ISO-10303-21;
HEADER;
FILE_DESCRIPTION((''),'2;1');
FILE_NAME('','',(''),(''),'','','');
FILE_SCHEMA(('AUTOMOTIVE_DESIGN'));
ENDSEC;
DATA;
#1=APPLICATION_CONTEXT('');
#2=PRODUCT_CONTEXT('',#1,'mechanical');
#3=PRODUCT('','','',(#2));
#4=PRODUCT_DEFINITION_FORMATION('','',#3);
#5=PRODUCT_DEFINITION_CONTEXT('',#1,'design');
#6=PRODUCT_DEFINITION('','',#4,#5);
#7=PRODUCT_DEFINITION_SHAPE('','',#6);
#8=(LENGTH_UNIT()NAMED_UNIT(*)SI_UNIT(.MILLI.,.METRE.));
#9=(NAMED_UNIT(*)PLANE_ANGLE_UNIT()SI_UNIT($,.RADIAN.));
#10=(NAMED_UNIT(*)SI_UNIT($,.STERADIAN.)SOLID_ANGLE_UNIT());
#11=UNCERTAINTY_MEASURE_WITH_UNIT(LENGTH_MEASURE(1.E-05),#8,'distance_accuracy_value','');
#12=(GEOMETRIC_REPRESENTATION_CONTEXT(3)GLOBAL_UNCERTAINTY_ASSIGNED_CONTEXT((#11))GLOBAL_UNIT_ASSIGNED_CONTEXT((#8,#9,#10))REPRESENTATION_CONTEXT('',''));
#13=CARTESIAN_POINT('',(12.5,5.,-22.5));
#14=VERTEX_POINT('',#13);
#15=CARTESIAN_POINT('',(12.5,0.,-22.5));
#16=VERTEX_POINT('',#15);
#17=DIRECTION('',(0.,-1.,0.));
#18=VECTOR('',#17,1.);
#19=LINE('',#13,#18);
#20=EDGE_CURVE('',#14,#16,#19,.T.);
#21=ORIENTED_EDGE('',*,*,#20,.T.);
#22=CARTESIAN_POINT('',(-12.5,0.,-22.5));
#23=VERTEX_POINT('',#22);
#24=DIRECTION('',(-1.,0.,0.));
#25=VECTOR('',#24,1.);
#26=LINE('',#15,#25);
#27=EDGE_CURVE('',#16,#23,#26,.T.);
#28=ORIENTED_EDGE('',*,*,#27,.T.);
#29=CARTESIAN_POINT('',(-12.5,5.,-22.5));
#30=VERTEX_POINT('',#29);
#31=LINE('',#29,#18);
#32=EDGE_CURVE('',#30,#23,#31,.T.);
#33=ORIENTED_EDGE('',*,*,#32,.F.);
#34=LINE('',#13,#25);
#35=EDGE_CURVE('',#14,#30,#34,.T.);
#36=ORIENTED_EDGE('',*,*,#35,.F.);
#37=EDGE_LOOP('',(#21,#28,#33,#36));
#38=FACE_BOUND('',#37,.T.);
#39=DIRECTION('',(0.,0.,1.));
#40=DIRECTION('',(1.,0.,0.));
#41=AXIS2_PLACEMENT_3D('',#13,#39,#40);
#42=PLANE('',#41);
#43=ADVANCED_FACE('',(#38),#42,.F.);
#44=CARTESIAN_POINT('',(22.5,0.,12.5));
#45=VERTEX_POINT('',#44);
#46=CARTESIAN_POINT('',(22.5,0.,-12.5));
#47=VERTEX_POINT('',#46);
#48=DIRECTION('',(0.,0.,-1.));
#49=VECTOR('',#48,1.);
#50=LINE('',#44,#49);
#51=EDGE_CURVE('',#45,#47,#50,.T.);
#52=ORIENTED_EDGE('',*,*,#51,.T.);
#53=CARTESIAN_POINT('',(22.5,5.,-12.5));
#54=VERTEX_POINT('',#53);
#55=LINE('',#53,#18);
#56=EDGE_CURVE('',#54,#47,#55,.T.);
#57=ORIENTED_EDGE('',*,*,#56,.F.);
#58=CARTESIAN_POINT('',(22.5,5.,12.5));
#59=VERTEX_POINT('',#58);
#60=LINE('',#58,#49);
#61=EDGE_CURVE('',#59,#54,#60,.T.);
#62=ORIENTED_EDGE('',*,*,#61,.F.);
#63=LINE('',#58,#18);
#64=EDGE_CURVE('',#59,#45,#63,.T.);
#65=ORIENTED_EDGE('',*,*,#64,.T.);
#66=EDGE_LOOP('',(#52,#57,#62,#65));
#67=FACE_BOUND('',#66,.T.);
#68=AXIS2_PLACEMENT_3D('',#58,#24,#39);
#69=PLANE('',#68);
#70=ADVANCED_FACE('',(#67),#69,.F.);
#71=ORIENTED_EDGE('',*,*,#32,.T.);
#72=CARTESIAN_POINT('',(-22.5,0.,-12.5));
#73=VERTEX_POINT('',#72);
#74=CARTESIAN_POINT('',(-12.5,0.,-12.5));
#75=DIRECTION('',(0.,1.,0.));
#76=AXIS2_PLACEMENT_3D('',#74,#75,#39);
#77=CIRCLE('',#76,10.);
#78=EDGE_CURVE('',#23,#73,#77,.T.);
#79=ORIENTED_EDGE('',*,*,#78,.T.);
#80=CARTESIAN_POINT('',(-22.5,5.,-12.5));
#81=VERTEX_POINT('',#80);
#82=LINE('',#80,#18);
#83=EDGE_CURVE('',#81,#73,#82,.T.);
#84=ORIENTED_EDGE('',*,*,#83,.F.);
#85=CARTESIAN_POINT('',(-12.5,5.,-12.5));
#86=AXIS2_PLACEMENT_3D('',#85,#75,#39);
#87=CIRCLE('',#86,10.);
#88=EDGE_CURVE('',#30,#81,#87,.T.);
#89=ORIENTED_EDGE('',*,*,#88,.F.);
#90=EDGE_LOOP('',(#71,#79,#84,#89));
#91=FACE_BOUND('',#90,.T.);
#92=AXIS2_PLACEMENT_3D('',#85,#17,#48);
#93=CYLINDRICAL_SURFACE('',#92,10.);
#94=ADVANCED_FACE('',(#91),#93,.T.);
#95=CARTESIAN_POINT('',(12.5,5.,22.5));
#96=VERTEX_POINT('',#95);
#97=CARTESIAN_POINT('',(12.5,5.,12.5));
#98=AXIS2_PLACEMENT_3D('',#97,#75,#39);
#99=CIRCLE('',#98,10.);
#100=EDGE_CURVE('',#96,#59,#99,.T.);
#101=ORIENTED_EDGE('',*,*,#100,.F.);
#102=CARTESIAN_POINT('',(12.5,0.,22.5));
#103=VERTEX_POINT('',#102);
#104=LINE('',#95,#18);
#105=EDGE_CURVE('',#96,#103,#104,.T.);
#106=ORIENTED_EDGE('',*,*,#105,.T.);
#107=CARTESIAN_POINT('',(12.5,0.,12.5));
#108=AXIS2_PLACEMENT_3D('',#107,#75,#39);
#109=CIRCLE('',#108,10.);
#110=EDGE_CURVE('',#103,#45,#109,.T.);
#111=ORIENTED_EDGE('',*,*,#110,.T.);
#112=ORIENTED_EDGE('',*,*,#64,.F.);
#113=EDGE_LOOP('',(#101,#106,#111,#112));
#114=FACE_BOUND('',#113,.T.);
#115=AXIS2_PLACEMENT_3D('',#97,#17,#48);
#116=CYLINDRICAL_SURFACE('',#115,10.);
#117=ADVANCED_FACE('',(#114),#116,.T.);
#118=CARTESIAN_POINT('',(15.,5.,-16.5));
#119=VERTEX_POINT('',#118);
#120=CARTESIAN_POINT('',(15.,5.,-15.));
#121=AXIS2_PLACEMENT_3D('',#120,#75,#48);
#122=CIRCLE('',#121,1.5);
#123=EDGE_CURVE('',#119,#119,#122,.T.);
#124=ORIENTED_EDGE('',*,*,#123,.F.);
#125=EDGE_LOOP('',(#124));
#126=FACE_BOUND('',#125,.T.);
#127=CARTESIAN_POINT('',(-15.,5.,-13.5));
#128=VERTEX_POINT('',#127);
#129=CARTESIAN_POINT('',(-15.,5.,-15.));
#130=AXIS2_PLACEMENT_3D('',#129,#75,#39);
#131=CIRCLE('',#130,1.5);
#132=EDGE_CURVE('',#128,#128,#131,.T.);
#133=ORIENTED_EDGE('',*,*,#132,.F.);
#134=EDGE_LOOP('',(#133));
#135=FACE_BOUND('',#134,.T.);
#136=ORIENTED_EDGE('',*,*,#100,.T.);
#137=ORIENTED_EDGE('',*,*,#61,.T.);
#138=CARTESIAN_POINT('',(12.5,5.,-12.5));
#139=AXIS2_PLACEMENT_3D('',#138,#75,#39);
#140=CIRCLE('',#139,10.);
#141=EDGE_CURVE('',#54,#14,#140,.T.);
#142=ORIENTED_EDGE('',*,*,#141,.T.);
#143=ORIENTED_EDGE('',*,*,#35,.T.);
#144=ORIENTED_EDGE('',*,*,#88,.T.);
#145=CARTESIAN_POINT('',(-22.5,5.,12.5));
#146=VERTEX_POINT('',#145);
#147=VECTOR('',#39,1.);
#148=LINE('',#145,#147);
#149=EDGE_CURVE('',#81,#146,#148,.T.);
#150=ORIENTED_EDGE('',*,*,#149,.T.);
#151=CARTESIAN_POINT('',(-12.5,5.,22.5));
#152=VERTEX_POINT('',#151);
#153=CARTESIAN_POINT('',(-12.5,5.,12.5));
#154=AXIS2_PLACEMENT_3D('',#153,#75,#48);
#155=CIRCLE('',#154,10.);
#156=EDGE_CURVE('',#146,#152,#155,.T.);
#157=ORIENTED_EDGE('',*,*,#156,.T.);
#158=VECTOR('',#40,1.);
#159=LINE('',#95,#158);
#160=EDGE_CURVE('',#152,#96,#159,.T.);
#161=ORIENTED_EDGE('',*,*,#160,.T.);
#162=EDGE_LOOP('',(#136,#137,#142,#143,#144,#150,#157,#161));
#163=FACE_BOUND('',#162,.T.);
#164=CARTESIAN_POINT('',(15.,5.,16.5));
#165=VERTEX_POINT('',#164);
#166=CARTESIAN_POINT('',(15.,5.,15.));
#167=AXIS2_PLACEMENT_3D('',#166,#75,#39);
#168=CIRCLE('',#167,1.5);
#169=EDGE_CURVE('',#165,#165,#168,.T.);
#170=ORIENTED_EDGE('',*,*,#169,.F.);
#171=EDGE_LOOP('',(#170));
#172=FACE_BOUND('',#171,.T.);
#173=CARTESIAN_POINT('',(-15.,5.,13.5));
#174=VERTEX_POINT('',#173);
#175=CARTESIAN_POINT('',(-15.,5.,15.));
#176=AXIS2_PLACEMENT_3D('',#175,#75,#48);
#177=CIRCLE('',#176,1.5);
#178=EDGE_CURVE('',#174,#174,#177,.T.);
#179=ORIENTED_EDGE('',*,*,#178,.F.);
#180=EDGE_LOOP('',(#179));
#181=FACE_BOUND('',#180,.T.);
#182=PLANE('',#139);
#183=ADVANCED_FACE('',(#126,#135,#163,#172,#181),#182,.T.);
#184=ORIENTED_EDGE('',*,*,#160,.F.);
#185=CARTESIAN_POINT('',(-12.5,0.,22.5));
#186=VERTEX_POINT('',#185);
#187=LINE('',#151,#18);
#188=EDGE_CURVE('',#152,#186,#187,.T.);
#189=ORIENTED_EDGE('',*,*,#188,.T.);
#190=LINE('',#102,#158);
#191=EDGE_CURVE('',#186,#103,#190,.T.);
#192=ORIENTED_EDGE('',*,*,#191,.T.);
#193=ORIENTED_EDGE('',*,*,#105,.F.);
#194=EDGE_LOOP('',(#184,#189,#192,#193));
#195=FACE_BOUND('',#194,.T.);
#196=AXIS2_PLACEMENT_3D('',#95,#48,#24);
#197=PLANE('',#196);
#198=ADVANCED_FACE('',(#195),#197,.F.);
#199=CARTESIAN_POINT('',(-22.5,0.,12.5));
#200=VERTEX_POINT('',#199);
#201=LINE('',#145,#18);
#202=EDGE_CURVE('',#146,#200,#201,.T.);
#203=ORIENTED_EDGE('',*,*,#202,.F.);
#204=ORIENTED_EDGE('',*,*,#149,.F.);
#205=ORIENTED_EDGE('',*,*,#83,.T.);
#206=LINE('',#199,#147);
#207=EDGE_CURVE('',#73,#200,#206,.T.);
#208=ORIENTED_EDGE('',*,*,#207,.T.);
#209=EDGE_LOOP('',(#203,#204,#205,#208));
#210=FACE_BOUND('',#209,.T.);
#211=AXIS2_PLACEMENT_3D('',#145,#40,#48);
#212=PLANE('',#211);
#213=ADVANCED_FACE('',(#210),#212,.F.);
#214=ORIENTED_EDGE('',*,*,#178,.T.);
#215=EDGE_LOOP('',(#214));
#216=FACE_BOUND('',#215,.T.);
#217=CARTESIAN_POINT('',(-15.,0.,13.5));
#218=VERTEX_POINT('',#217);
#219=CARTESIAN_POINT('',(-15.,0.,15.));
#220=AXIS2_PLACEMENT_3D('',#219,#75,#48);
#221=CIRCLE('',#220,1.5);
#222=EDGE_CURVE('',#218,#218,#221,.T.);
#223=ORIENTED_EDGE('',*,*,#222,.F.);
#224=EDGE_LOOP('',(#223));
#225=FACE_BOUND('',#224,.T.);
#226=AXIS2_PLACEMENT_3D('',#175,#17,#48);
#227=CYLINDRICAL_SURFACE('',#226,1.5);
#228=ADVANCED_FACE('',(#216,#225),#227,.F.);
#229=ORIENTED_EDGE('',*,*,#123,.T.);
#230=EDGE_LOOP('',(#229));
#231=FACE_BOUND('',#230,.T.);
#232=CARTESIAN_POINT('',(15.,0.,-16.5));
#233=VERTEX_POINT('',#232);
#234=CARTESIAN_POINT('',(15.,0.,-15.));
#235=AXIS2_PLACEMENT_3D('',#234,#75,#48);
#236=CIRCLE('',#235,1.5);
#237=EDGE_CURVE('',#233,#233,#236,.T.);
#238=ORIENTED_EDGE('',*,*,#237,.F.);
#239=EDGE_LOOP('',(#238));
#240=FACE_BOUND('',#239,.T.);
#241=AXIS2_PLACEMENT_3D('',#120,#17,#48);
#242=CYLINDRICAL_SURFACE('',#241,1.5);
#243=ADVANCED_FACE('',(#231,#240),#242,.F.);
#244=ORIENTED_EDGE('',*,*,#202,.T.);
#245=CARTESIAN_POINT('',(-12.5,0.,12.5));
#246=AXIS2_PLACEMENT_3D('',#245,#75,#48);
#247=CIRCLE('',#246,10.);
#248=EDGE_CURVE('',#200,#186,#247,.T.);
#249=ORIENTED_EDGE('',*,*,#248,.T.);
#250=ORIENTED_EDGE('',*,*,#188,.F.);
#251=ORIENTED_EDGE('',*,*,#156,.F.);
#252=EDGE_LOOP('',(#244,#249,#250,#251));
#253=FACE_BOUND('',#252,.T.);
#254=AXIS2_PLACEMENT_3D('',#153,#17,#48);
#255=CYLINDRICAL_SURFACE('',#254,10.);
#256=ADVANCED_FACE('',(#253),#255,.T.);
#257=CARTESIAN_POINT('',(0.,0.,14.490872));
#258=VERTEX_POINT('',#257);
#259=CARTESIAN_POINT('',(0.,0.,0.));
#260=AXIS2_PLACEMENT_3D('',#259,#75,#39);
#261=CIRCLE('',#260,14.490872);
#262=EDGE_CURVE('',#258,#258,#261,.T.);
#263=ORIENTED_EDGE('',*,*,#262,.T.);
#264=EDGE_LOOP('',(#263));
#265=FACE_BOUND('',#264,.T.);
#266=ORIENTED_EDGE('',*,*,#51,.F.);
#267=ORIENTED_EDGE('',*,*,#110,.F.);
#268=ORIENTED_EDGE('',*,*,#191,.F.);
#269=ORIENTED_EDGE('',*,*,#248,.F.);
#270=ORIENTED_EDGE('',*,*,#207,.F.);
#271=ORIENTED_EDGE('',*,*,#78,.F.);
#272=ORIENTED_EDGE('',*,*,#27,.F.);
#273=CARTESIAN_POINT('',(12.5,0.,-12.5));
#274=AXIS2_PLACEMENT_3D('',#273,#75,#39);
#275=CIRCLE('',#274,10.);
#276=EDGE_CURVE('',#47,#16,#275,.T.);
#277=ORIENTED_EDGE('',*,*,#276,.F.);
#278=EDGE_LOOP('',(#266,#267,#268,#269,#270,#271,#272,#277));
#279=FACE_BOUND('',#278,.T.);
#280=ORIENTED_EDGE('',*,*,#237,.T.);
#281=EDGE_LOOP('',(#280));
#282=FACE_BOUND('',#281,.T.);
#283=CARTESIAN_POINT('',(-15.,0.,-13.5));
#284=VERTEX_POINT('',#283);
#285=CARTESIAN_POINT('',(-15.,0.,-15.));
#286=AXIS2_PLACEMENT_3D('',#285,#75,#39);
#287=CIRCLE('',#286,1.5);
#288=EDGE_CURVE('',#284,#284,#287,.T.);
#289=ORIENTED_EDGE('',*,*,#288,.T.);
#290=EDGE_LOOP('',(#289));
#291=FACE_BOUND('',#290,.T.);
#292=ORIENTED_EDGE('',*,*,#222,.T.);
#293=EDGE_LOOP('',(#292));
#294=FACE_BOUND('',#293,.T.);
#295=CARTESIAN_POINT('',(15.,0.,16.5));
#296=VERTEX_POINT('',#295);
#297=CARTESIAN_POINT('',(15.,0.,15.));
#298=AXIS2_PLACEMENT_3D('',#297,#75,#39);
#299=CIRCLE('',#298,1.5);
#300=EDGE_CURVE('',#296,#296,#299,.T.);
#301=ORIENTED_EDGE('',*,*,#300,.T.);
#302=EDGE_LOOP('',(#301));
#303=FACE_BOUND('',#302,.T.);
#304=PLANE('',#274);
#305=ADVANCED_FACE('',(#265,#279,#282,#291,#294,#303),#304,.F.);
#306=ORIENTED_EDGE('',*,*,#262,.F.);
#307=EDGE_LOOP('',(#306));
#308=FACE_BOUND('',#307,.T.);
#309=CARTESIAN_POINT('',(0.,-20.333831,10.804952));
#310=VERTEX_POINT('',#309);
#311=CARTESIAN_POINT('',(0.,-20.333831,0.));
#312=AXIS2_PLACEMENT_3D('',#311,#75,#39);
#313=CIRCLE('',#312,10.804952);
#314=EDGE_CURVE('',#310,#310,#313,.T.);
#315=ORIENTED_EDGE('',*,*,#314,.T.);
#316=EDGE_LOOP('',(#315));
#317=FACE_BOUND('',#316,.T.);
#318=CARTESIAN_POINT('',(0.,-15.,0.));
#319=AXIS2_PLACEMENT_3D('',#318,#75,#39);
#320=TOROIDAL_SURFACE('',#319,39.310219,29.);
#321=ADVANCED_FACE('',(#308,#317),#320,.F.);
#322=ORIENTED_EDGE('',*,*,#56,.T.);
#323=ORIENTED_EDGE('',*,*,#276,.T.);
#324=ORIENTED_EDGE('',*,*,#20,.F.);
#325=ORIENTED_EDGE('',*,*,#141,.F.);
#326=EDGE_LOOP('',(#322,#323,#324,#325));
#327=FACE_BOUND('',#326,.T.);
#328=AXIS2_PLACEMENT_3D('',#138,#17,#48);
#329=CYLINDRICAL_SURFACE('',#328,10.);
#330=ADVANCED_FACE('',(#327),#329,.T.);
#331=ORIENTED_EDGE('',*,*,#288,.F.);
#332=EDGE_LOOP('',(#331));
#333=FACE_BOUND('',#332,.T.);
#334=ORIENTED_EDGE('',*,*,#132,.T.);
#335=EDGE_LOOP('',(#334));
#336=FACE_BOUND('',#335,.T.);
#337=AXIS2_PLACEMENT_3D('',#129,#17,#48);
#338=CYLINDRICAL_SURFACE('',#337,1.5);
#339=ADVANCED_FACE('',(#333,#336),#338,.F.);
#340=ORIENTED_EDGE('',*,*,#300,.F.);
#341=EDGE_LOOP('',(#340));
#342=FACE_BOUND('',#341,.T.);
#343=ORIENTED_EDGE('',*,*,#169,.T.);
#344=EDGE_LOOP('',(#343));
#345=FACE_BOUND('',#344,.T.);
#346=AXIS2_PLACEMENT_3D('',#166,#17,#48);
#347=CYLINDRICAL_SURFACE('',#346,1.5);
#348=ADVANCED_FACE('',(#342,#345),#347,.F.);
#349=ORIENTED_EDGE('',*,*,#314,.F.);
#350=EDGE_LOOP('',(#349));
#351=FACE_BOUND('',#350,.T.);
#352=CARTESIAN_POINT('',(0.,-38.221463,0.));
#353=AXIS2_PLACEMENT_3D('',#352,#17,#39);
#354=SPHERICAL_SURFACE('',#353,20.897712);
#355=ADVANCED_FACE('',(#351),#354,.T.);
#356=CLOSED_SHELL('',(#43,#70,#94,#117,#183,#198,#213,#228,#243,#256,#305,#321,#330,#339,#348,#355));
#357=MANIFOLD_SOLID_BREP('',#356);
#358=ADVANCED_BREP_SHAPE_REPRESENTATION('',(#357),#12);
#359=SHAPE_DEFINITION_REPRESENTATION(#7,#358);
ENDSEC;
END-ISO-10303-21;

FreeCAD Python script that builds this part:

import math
import FreeCAD as App
import Part
import Sketcher

doc = App.newDocument("Part")
body = doc.addObject("PartDesign::Body", "Body")

# Sketch on XZ plane
sketch1 = doc.addObject("Sketcher::SketchObject", "Sketch")
body.addObject(sketch1)
sketch1.AttachmentSupport = (doc.XZ_Plane, [""])
sketch1.MapMode = "FlatFace"
sketch1.addGeometry([
    Part.LineSegment(App.Vector(-12.5, 22.5, 0), App.Vector(12.5, 22.5, 0)),  # 0
    Part.ArcOfCircle(Part.Circle(App.Vector(12.5, 12.5, 0), App.Vector(0, 0, 1), 10), math.radians(0), math.radians(90)),  # 1
    Part.LineSegment(App.Vector(22.5, 12.5, 0), App.Vector(22.5, -12.5, 0)),  # 2
    Part.ArcOfCircle(Part.Circle(App.Vector(12.5, -12.5, 0), App.Vector(0, 0, 1), 10), math.radians(-90), math.radians(0)),  # 3
    Part.LineSegment(App.Vector(12.5, -22.5, 0), App.Vector(-12.5, -22.5, 0)),  # 4
    Part.ArcOfCircle(Part.Circle(App.Vector(-12.5, -12.5, 0), App.Vector(0, 0, 1), 10), math.radians(180), math.radians(270)),  # 5
    Part.LineSegment(App.Vector(-22.5, -12.5, 0), App.Vector(-22.5, 12.5, 0)),  # 6
    Part.ArcOfCircle(Part.Circle(App.Vector(-12.5, 12.5, 0), App.Vector(0, 0, 1), 10), math.radians(90), math.radians(180)),  # 7
    Part.Circle(App.Vector(15, 15, 0), App.Vector(0, 0, 1), 1.5),  # 8
    Part.Circle(App.Vector(-15, 15, 0), App.Vector(0, 0, 1), 1.5),  # 9
    Part.Circle(App.Vector(15, -15, 0), App.Vector(0, 0, 1), 1.5),  # 10
    Part.Circle(App.Vector(-15, -15, 0), App.Vector(0, 0, 1), 1.5),  # 11
], False)
sketch1.addConstraint([
    Sketcher.Constraint("Tangent", 0, 2, 1, 2),
    Sketcher.Constraint("Tangent", 1, 1, 2, 1),
    Sketcher.Constraint("Tangent", 2, 2, 3, 2),
    Sketcher.Constraint("Tangent", 3, 1, 4, 1),
    Sketcher.Constraint("Tangent", 4, 2, 5, 2),
    Sketcher.Constraint("Tangent", 5, 1, 6, 1),
    Sketcher.Constraint("Tangent", 6, 2, 7, 2),
    Sketcher.Constraint("Tangent", 7, 1, 0, 1),
    Sketcher.Constraint("Horizontal", 0),
    Sketcher.Constraint("Vertical", 2),
    Sketcher.Constraint("Horizontal", 4),
    Sketcher.Constraint("Vertical", 6),
    Sketcher.Constraint("Equal", 1, 3),
    Sketcher.Constraint("Equal", 3, 5),
    Sketcher.Constraint("Equal", 5, 7),
    Sketcher.Constraint("Equal", 8, 9),
    Sketcher.Constraint("Equal", 9, 10),
    Sketcher.Constraint("Equal", 10, 11),
    Sketcher.Constraint("Symmetric", 1, 3, 5, 3, -1, 1),
    Sketcher.Constraint("Symmetric", 9, 3, 10, 3, -1, 1),
    Sketcher.Constraint("Symmetric", 8, 3, 11, 3, -1, 1),
    Sketcher.Constraint("Symmetric", 8, 3, 9, 3, -2),
    Sketcher.Constraint("Equal", 4, 2),
    Sketcher.Constraint("Diameter", 8, 3.0),
    Sketcher.Constraint("Radius", 1, 10.0),
    Sketcher.Constraint("DistanceX", 0, 1, 0, 2, 25.0),
    Sketcher.Constraint("DistanceX", -1, 1, 8, 3, 15.0),
    Sketcher.Constraint("DistanceY", -1, 1, 8, 3, 15.0),
])
pad1 = doc.addObject("PartDesign::Pad", "Pad")
body.addObject(pad1)
pad1.Profile = sketch1
pad1.Length = 5
pad1.Reversed = True

# Sketch on XY plane
sketch2 = doc.addObject("Sketcher::SketchObject", "Sketch001")
body.addObject(sketch2)
sketch2.AttachmentSupport = (doc.XY_Plane, [""])
sketch2.MapMode = "FlatFace"
sketch2.addGeometry([
    Part.LineSegment(App.Vector(0, -30, 0), App.Vector(0, 0, 0)),
    Part.LineSegment(App.Vector(0, 0, 0), App.Vector(-14, 0, 0)),
    Part.ArcOfCircle(Part.Circle(App.Vector(-39, -15, 0), App.Vector(0, 0, 1), 29), math.radians(-31), math.radians(31)),
    Part.LineSegment(App.Vector(-14, -30, 0), App.Vector(0, -30, 0)),
], False)
sketch2.addConstraint([
    Sketcher.Constraint("Coincident", 0, 2, 1, 1),
    Sketcher.Constraint("Coincident", 1, 2, 2, 2),
    Sketcher.Constraint("Coincident", 2, 1, 3, 1),
    Sketcher.Constraint("Coincident", 3, 2, 0, 1),
    Sketcher.Constraint("Vertical", 0),
    Sketcher.Constraint("Horizontal", 1),
    Sketcher.Constraint("Horizontal", 3),
    Sketcher.Constraint("Coincident", 0, 2, -1, 1),
    Sketcher.Constraint("Vertical", 1, 2, 2, 1),
    Sketcher.Constraint("Radius", 2, 29.0),
    Sketcher.Constraint("DistanceY", 0, 1, 0, 2, 30.0),
    Sketcher.Constraint("DistanceX", 1, 2, 1, 1, 14.490872),
])
revolution = doc.addObject("PartDesign::Revolution", "Revolution")
body.addObject(revolution)
revolution.Profile = sketch2
revolution.ReferenceAxis = (sketch2, ["V_Axis"])
revolution.Angle = 360

# Sketch on YZ plane
sketch3 = doc.addObject("Sketcher::SketchObject", "Sketch002")
body.addObject(sketch3)
sketch3.AttachmentSupport = (doc.YZ_Plane, [""])
sketch3.MapMode = "FlatFace"
sketch3.addGeometry([
    Part.LineSegment(App.Vector(-59, 0, 0), App.Vector(-17, 0, 0)),
    Part.ArcOfCircle(Part.Circle(App.Vector(-38, 0, 0), App.Vector(0, 0, 1), 21), math.radians(0), math.radians(180)),
], False)
sketch3.addConstraint([
    Sketcher.Constraint("Coincident", 0, 1, 1, 2),
    Sketcher.Constraint("Coincident", 1, 1, 0, 2),
    Sketcher.Constraint("Horizontal", 0),
    Sketcher.Constraint("PointOnObject", 1, 3, -1),
    Sketcher.Constraint("PointOnObject", 0, 1, -1),
    Sketcher.Constraint("Radius", 1, 20.897712),
    Sketcher.Constraint("DistanceX", 1, 1, -1, 1, 17.323751),
])
revolution2 = doc.addObject("PartDesign::Revolution", "Revolution001")
body.addObject(revolution2)
revolution2.Profile = sketch3
revolution2.ReferenceAxis = (sketch3, ["H_Axis"])
revolution2.Angle = 360

doc.recompute()
